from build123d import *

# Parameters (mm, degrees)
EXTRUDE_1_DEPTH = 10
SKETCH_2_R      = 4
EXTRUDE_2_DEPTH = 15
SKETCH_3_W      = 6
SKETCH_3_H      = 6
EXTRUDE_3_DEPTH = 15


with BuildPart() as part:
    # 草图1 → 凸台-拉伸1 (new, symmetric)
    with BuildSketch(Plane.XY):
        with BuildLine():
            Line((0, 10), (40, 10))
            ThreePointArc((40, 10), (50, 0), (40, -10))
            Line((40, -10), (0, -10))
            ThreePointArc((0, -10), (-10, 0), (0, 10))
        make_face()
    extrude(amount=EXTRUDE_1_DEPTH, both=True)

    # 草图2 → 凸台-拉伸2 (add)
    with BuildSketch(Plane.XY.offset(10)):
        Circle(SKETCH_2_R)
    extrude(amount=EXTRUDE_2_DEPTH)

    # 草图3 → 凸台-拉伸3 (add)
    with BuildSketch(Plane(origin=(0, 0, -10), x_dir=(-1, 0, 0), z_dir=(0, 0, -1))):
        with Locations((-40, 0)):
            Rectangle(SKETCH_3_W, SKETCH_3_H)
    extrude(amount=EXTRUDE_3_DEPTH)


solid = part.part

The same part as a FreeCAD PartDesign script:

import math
import FreeCAD as App
import Part
import Sketcher
Q = App.Units.Quantity

doc = App.newDocument("Part")
body = doc.addObject("PartDesign::Body", "Body")

# Sketch on XY plane
sketch1 = body.newObject("Sketcher::SketchObject", "Sketch")
sketch1.AttachmentSupport = (doc.getObject("XY_Plane"), [""])
sketch1.MapMode = "FlatFace"
sketch1.addGeometry([
    Part.LineSegment(App.Vector(40, 10, 0), App.Vector(0, 10, 0)),
    Part.ArcOfCircle(Part.Circle(App.Vector(0, 0, 0), App.Vector(0, 0, 1), 10), math.radians(90), math.radians(270)),
    Part.LineSegment(App.Vector(0, -10, 0), App.Vector(40, -10, 0)),
    Part.ArcOfCircle(Part.Circle(App.Vector(40, 0, 0), App.Vector(0, 0, 1), 10), math.radians(-90), math.radians(90)),
], False)
sketch1.addConstraint([
    Sketcher.Constraint("Tangent", 0, 2, 1, 1),
    Sketcher.Constraint("Tangent", 1, 2, 2, 1),
    Sketcher.Constraint("Tangent", 2, 2, 3, 1),
    Sketcher.Constraint("Tangent", 3, 2, 0, 1),
    Sketcher.Constraint("Horizontal", 0),
    Sketcher.Constraint("Horizontal", 2),
    Sketcher.Constraint("Coincident", 1, 3, -1, 1),
    Sketcher.Constraint("Radius", 1, Q("10 mm")),
    Sketcher.Constraint("DistanceX", 0, 2, 0, 1, Q("40 mm")),
])
pad1 = body.newObject("PartDesign::Pad", "Pad")
pad1.Profile = sketch1
pad1.Length = 20
pad1.Midplane = True

# Sketch on XY plane
sketch2 = body.newObject("Sketcher::SketchObject", "Sketch001")
sketch2.AttachmentSupport = (doc.getObject("XY_Plane"), [""])
sketch2.MapMode = "FlatFace"
sketch2.AttachmentOffset = App.Placement(App.Vector(0, 0, 10), App.Rotation())
sketch2.addGeometry(Part.Circle(App.Vector(0, 0, 0), App.Vector(0, 0, 1), 4), False)
sketch2.addConstraint([
    Sketcher.Constraint("Coincident", 0, 3, -1, 1),
    Sketcher.Constraint("Diameter", 0, Q("8 mm")),
])
pad2 = body.newObject("PartDesign::Pad", "Pad001")
pad2.Profile = sketch2
pad2.Length = 15

# Sketch on XY plane
sketch3 = body.newObject("Sketcher::SketchObject", "Sketch002")
sketch3.AttachmentSupport = (doc.getObject("XY_Plane"), [""])
sketch3.MapMode = "FlatFace"
sketch3.AttachmentOffset = App.Placement(App.Vector(0, 0, -10), App.Rotation())
sketch3.addGeometry([
    Part.LineSegment(App.Vector(43, 3, 0), App.Vector(43, -3, 0)),
    Part.LineSegment(App.Vector(43, -3, 0), App.Vector(37, -3, 0)),
    Part.LineSegment(App.Vector(37, -3, 0), App.Vector(37, 3, 0)),
    Part.LineSegment(App.Vector(37, 3, 0), App.Vector(43, 3, 0)),
], False)
sketch3.addConstraint([
    Sketcher.Constraint("Coincident", 0, 2, 1, 1),
    Sketcher.Constraint("Coincident", 1, 2, 2, 1),
    Sketcher.Constraint("Coincident", 2, 2, 3, 1),
    Sketcher.Constraint("Coincident", 3, 2, 0, 1),
    Sketcher.Constraint("Vertical", 0),
    Sketcher.Constraint("Horizontal", 1),
    Sketcher.Constraint("Vertical", 2),
    Sketcher.Constraint("Horizontal", 3),
    Sketcher.Constraint("Equal", 3, 0),
    Sketcher.Constraint("DistanceX", 1, 2, 1, 1, Q("6 mm")),
    Sketcher.Constraint("DistanceX", -1, 1, 0, 2, Q("43 mm")),
    Sketcher.Constraint("DistanceY", 0, 2, -1, 1, Q("3 mm")),
])
pad3 = body.newObject("PartDesign::Pad", "Pad002")
pad3.Profile = sketch3
pad3.Length = 15
pad3.Reversed = True

doc.recompute()
